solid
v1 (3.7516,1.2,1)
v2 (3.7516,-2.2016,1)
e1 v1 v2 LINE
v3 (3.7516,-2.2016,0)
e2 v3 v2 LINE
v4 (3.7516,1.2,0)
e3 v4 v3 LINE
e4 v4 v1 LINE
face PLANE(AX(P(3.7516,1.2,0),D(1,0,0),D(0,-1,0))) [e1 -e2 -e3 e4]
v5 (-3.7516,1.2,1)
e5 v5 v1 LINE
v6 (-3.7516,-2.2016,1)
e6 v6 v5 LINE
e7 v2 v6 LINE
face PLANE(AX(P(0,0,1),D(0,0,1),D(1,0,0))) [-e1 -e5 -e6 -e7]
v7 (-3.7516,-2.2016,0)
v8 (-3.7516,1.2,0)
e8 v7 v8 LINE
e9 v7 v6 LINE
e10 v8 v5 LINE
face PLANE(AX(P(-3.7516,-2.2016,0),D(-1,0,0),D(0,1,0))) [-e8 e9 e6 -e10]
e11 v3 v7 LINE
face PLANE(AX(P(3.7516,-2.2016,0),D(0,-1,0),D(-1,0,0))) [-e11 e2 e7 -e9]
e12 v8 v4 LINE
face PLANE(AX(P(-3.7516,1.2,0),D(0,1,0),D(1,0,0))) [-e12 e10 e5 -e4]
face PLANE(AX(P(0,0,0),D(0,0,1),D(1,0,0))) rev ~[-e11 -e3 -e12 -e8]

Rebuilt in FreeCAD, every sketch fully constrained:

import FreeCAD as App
import Part
import Sketcher
Q = App.Units.Quantity


def add_polygon(sketch, points):
    """Adds a closed chain of lines whose ends are joined by coincident constraints."""
    first, n = sketch.GeometryCount, len(points)
    for a, b in zip(points, points[1:] + points[:1]):
        sketch.addGeometry(Part.LineSegment(App.Vector(*a, 0), App.Vector(*b, 0)), False)
    for i in range(n):
        sketch.addConstraint(Sketcher.Constraint("Coincident", first + i, 2, first + (i + 1) % n, 1))

doc = App.newDocument("Part")
body = doc.addObject("PartDesign::Body", "Body")

# Sketch on XY plane
sketch1 = doc.addObject("Sketcher::SketchObject", "Sketch")
body.addObject(sketch1)
sketch1.AttachmentSupport = (doc.XY_Plane, [""])
sketch1.MapMode = "FlatFace"
add_polygon(sketch1, [(3.8, 1.2), (-3.8, 1.2), (-3.8, -2.2), (3.8, -2.2)])  # lines 0-3
sketch1.addConstraint(Sketcher.Constraint("Horizontal", 0))
sketch1.addConstraint(Sketcher.Constraint("Vertical", 1))
sketch1.addConstraint(Sketcher.Constraint("Horizontal", 2))
sketch1.addConstraint(Sketcher.Constraint("Vertical", 3))
sketch1.addConstraint(Sketcher.Constraint("DistanceY", -1, 1, 0, 2, Q("1.2 mm")))
sketch1.addConstraint(Sketcher.Constraint("DistanceX", 0, 2, 0, 1, Q("7.5032 mm")))
sketch1.addConstraint(Sketcher.Constraint("DistanceY", 1, 2, 1, 1, Q("3.4016 mm")))
sketch1.addConstraint(Sketcher.Constraint("DistanceX", 0, 2, -1, 1, Q("3.7516 mm")))
pad1 = doc.addObject("PartDesign::Pad", "Pad")
body.addObject(pad1)
pad1.Profile = sketch1
pad1.Length = 1

doc.recompute()
